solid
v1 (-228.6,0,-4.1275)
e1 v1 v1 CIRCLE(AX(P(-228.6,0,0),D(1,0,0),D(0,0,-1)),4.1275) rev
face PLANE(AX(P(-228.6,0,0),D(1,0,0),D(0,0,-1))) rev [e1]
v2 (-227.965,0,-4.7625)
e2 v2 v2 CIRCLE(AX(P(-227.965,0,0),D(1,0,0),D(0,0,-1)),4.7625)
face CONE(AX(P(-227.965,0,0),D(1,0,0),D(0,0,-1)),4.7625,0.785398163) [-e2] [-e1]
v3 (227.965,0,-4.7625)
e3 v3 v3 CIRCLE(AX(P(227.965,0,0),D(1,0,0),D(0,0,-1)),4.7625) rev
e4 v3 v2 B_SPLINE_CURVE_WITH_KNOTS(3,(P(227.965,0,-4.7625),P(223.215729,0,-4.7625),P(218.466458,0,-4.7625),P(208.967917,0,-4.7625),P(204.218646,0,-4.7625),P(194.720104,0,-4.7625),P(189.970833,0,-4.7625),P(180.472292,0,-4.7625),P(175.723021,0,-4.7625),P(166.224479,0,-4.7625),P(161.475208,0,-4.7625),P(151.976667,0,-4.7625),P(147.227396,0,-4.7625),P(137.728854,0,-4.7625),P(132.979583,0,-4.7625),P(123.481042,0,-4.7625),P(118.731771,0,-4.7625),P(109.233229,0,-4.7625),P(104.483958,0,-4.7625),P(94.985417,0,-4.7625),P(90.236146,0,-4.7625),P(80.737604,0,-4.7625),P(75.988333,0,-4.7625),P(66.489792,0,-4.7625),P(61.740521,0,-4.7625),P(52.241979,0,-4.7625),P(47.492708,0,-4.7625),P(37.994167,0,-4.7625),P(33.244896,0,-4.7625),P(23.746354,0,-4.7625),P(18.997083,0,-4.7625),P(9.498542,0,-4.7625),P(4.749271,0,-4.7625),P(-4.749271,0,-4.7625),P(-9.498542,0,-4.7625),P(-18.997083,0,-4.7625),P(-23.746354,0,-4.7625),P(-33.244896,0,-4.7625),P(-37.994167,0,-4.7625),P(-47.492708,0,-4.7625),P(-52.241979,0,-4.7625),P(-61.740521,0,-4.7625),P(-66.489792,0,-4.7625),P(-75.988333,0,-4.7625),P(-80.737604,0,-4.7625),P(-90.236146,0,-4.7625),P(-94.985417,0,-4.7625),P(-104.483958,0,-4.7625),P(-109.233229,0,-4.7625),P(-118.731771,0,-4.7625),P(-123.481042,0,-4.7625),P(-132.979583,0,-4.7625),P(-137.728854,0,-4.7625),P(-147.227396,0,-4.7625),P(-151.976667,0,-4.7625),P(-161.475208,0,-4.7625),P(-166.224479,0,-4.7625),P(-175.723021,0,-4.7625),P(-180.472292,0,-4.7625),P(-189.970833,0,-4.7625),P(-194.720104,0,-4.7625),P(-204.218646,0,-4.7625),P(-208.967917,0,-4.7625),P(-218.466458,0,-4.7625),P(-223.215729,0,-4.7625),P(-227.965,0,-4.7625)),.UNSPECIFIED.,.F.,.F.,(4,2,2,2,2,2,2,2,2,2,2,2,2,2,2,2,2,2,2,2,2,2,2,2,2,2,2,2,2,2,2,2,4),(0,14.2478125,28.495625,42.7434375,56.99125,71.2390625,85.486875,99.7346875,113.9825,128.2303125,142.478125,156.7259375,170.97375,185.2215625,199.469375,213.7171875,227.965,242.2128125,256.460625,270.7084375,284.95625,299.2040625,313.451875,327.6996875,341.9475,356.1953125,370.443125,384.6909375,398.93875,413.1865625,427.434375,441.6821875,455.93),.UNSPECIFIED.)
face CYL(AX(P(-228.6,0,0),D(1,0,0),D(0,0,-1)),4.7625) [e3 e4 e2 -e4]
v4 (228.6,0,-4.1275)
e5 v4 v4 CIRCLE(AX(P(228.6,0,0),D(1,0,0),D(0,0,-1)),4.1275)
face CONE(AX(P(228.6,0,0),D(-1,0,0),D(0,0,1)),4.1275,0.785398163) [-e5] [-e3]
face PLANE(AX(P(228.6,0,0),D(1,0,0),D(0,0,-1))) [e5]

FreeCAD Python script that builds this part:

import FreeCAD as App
import Part
import Sketcher

V = App.Vector
Q = App.Units.Quantity


def edges_at(feature, points):
    """Names of the edges that pass closest to the given points."""
    edges = feature.Shape.Edges
    near = lambda p: min(range(len(edges)), key=lambda i: edges[i].distToShape(Part.Vertex(*p))[0])
    return sorted({f"Edge{near(p) + 1}" for p in points})

doc = App.newDocument("Part")
body = doc.addObject("PartDesign::Body", "Body")

sketch1 = body.newObject("Sketcher::SketchObject", "Sketch")
sketch1.AttachmentSupport = (doc.getObject("YZ_Plane"), [""])
sketch1.MapMode = "FlatFace"
sketch1.addGeometry(Part.Circle(V(0, 0, 0), V(0, 0, 1), 4.7625), False)
sketch1.addConstraint([
    Sketcher.Constraint("Coincident", 0, 3, -1, 1),
    Sketcher.Constraint("Diameter", 0, Q("0.375 in")),
])
pad1 = body.newObject("PartDesign::Pad", "Pad")
pad1.Profile = sketch1
pad1.Type = "TwoLengths"
pad1.Length = Q("9 in")
pad1.Length2 = Q("9 in")
doc.recompute()

chamfer = body.newObject("PartDesign::Chamfer", "Chamfer")
chamfer.Base = (pad1, edges_at(pad1, [(-228.6, 0, 4.763), (228.6, 0, 4.763)]))
chamfer.Size = Q("0.025 in")

doc.recompute()
